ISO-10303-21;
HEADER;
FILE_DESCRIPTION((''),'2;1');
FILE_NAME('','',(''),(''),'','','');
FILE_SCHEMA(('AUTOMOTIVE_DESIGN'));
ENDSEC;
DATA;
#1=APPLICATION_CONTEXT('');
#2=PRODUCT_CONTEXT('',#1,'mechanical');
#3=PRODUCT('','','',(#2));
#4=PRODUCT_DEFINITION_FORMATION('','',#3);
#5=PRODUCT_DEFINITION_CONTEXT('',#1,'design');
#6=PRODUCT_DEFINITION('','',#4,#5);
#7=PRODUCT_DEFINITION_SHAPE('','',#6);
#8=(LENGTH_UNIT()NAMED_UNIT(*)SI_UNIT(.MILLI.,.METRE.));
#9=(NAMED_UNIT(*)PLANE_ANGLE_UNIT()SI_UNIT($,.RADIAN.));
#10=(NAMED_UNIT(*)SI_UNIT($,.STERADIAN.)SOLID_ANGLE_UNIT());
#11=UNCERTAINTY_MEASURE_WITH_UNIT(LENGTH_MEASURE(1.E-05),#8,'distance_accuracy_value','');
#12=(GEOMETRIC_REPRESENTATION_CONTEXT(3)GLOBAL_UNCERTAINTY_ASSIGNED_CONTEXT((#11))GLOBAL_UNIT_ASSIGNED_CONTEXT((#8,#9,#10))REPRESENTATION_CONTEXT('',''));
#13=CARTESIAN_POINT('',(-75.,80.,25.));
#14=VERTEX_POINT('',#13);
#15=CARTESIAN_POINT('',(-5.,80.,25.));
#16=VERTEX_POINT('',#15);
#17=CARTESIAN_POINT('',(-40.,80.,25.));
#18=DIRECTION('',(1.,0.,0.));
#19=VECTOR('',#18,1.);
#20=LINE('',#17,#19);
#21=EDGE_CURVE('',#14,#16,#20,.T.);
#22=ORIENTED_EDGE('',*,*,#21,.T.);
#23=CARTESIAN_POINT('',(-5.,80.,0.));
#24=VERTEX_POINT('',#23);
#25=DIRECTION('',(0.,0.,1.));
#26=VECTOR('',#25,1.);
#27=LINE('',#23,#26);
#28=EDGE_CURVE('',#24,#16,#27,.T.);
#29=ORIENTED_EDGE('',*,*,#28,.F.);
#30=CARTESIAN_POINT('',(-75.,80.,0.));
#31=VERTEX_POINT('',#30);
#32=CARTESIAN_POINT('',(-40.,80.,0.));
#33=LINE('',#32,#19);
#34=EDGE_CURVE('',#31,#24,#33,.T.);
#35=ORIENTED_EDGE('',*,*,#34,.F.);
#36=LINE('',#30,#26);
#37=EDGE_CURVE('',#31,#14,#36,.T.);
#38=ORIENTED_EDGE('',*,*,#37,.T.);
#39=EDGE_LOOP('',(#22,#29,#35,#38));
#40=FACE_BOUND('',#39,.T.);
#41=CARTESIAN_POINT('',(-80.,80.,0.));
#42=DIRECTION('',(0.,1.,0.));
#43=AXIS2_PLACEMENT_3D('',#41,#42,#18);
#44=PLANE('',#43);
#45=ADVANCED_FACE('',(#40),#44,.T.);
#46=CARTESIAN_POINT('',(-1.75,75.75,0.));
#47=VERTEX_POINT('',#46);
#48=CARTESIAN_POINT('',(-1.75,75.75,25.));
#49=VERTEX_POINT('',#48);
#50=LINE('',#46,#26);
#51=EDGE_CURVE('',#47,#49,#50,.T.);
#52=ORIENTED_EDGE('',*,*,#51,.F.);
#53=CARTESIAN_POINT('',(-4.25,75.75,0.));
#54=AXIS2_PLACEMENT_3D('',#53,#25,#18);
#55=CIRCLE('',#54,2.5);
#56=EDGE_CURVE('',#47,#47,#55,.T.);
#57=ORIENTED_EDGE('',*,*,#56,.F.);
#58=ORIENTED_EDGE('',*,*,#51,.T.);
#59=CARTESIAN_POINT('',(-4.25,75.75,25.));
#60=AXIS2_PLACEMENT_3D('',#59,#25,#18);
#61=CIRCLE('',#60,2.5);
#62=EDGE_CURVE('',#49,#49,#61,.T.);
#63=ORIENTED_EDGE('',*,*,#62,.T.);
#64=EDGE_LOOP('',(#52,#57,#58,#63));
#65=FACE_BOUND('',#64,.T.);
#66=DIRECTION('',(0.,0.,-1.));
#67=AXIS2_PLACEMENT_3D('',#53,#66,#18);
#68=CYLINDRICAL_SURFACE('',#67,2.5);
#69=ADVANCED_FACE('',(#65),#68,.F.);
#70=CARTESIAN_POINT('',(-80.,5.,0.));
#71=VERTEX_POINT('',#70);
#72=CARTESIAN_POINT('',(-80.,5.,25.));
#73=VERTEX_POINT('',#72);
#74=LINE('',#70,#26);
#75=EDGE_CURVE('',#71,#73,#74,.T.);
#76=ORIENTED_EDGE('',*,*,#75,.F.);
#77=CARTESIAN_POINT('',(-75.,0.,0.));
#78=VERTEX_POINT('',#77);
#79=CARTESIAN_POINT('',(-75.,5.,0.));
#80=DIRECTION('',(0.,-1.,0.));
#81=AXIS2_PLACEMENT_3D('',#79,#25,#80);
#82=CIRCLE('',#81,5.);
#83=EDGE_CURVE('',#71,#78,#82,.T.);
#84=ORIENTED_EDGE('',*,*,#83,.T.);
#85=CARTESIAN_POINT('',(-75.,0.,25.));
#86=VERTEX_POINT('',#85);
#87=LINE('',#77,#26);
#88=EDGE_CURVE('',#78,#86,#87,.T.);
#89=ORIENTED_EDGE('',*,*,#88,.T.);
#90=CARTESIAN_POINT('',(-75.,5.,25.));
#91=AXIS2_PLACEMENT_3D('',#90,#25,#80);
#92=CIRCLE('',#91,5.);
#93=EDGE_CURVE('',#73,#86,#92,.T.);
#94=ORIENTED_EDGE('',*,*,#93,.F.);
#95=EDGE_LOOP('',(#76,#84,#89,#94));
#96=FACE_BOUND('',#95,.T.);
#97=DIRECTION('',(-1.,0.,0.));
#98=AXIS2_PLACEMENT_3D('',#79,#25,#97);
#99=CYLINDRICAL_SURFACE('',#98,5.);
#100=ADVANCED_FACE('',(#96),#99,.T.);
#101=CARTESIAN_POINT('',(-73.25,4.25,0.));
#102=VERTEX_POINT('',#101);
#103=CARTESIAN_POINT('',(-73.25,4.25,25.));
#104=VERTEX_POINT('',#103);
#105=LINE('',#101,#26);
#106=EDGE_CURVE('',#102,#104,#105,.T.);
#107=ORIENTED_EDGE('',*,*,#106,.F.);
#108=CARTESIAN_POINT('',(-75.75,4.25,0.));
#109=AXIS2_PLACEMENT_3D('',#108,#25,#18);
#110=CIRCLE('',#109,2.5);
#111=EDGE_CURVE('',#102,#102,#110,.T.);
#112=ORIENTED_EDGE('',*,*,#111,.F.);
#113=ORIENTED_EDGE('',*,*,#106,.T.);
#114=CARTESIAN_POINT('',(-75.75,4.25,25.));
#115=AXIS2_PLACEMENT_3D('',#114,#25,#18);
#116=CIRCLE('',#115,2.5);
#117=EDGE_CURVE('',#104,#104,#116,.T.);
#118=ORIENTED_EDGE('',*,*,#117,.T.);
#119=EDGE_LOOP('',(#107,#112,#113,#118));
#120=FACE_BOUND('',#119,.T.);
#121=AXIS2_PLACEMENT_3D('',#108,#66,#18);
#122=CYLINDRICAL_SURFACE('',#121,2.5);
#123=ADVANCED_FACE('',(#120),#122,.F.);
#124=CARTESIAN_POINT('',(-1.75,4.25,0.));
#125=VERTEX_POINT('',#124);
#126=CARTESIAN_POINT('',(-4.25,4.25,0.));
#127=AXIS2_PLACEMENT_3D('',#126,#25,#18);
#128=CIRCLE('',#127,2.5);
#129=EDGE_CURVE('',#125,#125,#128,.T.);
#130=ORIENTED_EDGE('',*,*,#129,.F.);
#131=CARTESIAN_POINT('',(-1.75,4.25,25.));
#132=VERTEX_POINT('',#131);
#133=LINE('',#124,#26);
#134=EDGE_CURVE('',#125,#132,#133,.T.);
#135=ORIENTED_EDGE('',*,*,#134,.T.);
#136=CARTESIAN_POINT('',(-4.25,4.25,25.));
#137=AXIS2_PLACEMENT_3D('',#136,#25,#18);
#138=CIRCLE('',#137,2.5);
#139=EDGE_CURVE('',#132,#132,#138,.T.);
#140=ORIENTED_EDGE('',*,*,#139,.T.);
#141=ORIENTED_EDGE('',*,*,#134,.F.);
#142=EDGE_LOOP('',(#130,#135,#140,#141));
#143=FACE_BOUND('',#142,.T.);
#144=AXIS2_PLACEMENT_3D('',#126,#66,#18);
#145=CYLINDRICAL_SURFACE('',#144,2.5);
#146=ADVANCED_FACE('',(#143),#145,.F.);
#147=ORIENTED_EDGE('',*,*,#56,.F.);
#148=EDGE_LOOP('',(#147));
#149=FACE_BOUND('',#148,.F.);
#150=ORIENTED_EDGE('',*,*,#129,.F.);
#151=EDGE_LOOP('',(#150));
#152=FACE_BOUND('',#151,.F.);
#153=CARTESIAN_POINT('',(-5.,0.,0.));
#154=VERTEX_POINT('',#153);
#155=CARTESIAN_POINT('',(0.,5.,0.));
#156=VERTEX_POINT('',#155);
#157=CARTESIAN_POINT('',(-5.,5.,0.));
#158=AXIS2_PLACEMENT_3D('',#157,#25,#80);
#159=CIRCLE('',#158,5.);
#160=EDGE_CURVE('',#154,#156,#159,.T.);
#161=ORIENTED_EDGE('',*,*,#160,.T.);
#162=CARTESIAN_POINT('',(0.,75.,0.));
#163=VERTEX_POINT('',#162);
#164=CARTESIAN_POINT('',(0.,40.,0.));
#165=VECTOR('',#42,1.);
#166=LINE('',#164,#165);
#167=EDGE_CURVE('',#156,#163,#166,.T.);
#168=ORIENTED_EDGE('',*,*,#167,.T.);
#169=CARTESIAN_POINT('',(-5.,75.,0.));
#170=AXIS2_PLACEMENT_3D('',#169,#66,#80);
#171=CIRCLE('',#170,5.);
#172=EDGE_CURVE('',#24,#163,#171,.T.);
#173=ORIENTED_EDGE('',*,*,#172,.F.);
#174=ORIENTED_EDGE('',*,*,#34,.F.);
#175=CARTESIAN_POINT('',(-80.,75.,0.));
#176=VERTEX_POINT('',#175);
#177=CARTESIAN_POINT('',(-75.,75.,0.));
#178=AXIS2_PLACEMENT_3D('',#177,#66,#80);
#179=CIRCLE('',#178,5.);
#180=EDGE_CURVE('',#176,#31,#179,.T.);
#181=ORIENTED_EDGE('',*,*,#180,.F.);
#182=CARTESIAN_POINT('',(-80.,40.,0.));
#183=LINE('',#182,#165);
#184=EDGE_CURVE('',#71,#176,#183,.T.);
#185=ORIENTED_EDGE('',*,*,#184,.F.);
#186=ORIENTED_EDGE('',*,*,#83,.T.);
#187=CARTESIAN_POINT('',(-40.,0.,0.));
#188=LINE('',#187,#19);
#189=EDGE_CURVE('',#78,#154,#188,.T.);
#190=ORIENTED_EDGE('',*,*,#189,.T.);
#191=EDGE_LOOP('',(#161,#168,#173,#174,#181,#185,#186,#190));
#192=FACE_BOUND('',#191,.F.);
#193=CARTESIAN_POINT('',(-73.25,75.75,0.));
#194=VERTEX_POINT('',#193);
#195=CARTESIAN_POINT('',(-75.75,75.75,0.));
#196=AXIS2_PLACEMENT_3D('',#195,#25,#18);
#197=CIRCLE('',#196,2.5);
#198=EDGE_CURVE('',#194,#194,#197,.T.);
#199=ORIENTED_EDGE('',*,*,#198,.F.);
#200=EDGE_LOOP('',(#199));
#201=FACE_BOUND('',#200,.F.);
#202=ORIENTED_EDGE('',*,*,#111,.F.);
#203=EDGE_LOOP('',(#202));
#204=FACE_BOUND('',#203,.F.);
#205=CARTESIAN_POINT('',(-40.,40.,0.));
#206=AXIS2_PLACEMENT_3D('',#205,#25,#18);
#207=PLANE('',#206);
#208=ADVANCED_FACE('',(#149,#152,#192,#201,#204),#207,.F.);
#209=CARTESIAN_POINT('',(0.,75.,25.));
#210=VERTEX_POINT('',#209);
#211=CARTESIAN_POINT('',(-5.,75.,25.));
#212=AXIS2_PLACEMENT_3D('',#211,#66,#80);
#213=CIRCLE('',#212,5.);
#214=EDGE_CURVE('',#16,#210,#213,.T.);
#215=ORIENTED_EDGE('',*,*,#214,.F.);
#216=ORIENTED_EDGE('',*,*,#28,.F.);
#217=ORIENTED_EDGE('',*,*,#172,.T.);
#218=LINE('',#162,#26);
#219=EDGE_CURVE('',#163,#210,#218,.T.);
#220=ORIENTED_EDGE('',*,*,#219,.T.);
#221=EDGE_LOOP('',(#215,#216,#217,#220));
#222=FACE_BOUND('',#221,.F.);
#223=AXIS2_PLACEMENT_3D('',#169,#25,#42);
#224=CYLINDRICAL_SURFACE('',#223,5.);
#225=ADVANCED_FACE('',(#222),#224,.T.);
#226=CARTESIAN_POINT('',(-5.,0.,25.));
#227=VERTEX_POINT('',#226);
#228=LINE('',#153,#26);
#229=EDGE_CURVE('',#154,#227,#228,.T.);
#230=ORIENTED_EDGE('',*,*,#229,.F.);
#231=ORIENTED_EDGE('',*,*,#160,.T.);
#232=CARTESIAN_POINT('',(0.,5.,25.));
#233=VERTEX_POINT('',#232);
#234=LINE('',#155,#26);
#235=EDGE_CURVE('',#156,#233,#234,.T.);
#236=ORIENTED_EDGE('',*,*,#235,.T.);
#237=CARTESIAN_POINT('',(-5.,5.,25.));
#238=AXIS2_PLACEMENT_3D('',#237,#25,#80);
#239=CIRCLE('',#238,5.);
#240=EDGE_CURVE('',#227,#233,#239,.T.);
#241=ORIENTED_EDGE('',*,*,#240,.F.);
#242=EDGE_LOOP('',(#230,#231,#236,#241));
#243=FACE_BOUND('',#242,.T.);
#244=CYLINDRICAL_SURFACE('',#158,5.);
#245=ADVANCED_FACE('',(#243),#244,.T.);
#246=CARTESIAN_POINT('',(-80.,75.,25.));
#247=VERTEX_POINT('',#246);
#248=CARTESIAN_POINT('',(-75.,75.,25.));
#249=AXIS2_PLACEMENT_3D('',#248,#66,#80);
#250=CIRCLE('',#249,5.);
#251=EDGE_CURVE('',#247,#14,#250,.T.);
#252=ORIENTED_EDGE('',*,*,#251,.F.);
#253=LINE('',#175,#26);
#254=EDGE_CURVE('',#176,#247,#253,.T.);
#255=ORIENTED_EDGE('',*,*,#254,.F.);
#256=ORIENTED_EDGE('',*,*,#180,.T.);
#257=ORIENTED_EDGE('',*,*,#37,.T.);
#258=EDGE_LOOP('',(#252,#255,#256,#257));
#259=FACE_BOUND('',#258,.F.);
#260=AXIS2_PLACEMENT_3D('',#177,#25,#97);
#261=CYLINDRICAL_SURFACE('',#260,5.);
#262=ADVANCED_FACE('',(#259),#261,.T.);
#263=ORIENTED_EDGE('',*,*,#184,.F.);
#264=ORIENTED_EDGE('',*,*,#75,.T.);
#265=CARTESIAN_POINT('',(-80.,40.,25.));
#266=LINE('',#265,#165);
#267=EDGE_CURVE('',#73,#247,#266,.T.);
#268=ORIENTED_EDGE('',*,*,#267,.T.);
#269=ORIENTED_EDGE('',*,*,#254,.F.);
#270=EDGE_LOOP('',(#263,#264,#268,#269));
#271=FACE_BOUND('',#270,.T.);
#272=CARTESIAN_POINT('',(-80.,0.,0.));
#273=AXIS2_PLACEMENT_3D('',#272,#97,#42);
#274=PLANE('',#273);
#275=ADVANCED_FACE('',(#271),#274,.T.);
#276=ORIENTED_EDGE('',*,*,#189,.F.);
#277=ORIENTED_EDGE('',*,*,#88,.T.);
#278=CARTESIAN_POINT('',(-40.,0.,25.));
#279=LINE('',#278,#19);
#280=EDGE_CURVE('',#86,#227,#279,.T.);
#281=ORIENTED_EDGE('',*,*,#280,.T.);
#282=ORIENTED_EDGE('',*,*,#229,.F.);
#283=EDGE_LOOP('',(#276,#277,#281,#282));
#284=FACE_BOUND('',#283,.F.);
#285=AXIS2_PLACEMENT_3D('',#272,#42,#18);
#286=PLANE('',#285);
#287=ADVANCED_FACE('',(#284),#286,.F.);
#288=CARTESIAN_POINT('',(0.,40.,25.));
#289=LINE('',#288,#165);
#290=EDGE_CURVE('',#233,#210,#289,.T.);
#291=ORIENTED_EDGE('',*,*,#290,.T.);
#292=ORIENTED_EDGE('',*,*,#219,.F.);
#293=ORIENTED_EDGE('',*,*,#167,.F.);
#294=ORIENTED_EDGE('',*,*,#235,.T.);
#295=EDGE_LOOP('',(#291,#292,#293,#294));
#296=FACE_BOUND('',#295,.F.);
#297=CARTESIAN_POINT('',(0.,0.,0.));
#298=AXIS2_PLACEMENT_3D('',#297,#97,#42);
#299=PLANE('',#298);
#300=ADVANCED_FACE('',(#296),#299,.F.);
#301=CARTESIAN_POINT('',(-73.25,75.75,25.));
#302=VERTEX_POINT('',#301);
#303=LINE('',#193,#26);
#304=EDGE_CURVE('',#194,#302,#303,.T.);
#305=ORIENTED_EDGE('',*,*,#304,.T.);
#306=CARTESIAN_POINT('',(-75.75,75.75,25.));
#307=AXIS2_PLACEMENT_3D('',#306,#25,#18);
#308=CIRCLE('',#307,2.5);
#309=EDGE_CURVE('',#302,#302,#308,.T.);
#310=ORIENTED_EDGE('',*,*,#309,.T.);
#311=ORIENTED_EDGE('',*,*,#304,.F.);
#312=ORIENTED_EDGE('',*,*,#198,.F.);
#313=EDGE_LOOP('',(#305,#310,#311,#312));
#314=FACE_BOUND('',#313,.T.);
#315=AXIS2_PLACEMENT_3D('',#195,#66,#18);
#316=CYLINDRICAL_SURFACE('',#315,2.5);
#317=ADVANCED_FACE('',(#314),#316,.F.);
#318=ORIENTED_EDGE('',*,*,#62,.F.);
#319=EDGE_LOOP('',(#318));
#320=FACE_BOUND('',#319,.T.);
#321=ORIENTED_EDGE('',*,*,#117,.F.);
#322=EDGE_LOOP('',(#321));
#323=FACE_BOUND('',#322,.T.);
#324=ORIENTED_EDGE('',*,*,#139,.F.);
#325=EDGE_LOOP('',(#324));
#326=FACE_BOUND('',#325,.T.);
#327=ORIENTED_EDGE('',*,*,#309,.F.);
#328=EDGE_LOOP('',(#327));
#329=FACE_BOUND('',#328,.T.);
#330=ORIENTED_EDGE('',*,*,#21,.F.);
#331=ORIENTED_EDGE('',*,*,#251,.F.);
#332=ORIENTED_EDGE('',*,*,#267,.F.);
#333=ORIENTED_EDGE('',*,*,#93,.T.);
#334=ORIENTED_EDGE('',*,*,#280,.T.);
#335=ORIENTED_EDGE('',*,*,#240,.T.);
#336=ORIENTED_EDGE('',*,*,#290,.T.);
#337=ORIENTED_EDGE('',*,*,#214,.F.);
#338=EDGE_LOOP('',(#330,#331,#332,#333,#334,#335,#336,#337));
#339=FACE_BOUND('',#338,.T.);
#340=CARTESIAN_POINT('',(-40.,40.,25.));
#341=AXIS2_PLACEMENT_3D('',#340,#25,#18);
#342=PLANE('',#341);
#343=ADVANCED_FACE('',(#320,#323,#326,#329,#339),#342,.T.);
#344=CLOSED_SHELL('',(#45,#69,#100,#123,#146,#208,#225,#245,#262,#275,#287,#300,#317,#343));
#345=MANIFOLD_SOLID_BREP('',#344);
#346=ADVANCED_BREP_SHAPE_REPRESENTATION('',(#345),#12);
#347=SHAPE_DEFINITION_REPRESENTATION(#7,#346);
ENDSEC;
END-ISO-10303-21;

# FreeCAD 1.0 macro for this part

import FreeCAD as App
import Part
import Sketcher

V = App.Vector
Q = App.Units.Quantity


def edges_at(feature, points):
    """Names of the edges that pass closest to the given points."""
    edges = feature.Shape.Edges
    near = lambda p: min(range(len(edges)), key=lambda i: edges[i].distToShape(Part.Vertex(*p))[0])
    return sorted({f"Edge{near(p) + 1}" for p in points})


def add_polygon(sketch, points):
    """Adds a closed chain of lines whose ends are joined by coincident constraints."""
    first, n = sketch.GeometryCount, len(points)
    for a, b in zip(points, points[1:] + points[:1]):
        sketch.addGeometry(Part.LineSegment(App.Vector(*a, 0), App.Vector(*b, 0)), False)
    for i in range(n):
        sketch.addConstraint(Sketcher.Constraint("Coincident", first + i, 2, first + (i + 1) % n, 1))

doc = App.newDocument("Part")
body = doc.addObject("PartDesign::Body", "Body")

# Sketch on XY plane
sketch1 = doc.addObject("Sketcher::SketchObject", "Sketch")
body.addObject(sketch1)
sketch1.AttachmentSupport = (doc.XY_Plane, [""])
sketch1.MapMode = "FlatFace"
add_polygon(sketch1, [(-80, 80), (-80, 0), (0, 0), (0, 80)])  # lines 0-3
sketch1.addGeometry(Part.Circle(V(-75.8, 4.2, 0), V(0, 0, 1), 2.5), False)  # 4
sketch1.addGeometry(Part.Circle(V(-4.2, 4.2, 0), V(0, 0, 1), 2.5), False)  # 5
sketch1.addGeometry(Part.Circle(V(-75.8, 75.8, 0), V(0, 0, 1), 2.5), False)  # 6
sketch1.addGeometry(Part.Circle(V(-4.2, 75.8, 0), V(0, 0, 1), 2.5), False)  # 7
sketch1.addConstraint([
    Sketcher.Constraint("Vertical", 0),
    Sketcher.Constraint("Horizontal", 1),
    Sketcher.Constraint("Vertical", 2),
    Sketcher.Constraint("Horizontal", 3),
    Sketcher.Constraint("Coincident", 1, 2, -1, 1),
    Sketcher.Constraint("Equal", 4, 5),
    Sketcher.Constraint("Equal", 5, 6),
    Sketcher.Constraint("Equal", 6, 7),
    Sketcher.Constraint("Horizontal", 4, 3, 5, 3),
    Sketcher.Constraint("Horizontal", 6, 3, 7, 3),
    Sketcher.Constraint("Vertical", 4, 3, 6, 3),
    Sketcher.Constraint("Vertical", 5, 3, 7, 3),
    Sketcher.Constraint("Equal", 3, 0),
    Sketcher.Constraint("Diameter", 4, Q("5 mm")),
    Sketcher.Constraint("DistanceX", 1, 1, 1, 2, Q("80 mm")),
    Sketcher.Constraint("DistanceX", 4, 3, 5, 3, Q("71.5 mm")),
    Sketcher.Constraint("DistanceY", 4, 3, 6, 3, Q("71.5 mm")),
    Sketcher.Constraint("DistanceX", 4, 3, -1, 1, Q("75.75 mm")),
    Sketcher.Constraint("DistanceY", -1, 1, 4, 3, Q("4.25 mm")),
])
pad1 = doc.addObject("PartDesign::Pad", "Pad")
body.addObject(pad1)
pad1.Profile = sketch1
pad1.Length = 25
doc.recompute()

fillet = doc.addObject("PartDesign::Fillet", "Fillet")
body.addObject(fillet)
fillet.Base = (pad1, edges_at(pad1, [
    (0, 0, 12.5),
    (0, 80, 12.5),
    (-80, 0, 12.5),
    (-80, 80, 12.5),
]))
fillet.Radius = 5

doc.recompute()
